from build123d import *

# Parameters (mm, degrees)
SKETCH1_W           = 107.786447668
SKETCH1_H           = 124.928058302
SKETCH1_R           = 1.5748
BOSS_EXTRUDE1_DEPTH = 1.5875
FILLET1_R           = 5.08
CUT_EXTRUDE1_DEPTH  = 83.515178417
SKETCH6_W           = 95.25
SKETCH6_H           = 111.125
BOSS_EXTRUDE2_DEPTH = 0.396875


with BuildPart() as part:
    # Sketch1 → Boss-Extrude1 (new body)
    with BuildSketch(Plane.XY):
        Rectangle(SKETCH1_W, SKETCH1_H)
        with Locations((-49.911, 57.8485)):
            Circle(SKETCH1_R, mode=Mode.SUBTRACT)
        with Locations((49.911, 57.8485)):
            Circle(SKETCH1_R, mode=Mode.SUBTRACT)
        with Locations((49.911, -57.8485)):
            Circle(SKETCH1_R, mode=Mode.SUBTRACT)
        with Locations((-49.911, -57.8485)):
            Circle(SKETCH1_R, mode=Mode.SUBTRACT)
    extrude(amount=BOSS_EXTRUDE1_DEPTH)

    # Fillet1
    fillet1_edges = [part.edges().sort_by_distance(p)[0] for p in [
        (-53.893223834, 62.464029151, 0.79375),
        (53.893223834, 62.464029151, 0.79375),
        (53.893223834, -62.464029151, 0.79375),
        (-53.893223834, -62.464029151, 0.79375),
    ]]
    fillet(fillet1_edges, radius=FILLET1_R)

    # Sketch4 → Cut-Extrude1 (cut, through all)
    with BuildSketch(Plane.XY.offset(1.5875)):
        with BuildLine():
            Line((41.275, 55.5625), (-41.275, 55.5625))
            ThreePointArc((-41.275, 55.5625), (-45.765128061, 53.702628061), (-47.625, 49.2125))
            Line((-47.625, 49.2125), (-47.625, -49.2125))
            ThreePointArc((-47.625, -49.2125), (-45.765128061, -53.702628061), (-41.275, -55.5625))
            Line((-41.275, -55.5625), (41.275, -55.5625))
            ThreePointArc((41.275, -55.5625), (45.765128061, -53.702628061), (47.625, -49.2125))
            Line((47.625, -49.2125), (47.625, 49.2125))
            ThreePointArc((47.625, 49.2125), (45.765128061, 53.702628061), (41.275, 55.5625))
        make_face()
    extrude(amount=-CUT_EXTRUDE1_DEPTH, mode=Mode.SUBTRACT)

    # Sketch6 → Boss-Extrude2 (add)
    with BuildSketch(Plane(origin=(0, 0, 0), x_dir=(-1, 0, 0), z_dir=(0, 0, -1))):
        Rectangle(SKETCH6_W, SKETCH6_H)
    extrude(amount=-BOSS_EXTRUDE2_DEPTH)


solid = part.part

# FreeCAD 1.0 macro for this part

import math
import FreeCAD as App
import Part
import Sketcher

V = App.Vector
Q = App.Units.Quantity


def edges_at(feature, points):
    """Names of the edges that pass closest to the given points."""
    edges = feature.Shape.Edges
    near = lambda p: min(range(len(edges)), key=lambda i: edges[i].distToShape(Part.Vertex(*p))[0])
    return sorted({f"Edge{near(p) + 1}" for p in points})

doc = App.newDocument("Part")
body = doc.addObject("PartDesign::Body", "Body")

# Sketch on XY plane
sketch1 = body.newObject("Sketcher::SketchObject", "Sketch")
sketch1.AttachmentSupport = (doc.getObject("XY_Plane"), [""])
sketch1.MapMode = "FlatFace"
sketch1.addGeometry(Part.LineSegment(V(-53.9, 62.5, 0), V(-53.9, -62.5, 0)), False)
sketch1.addGeometry(Part.LineSegment(V(-53.9, -62.5, 0), V(53.9, -62.5, 0)), False)
sketch1.addGeometry(Part.LineSegment(V(53.9, -62.5, 0), V(53.9, 62.5, 0)), False)
sketch1.addGeometry(Part.LineSegment(V(53.9, 62.5, 0), V(-53.9, 62.5, 0)), False)
sketch1.addGeometry(Part.Circle(V(-49.9, -57.8, 0), V(0, 0, 1), 1.6), False)
sketch1.addGeometry(Part.Circle(V(49.9, -57.8, 0), V(0, 0, 1), 1.6), False)
sketch1.addGeometry(Part.Circle(V(-49.9, 57.8, 0), V(0, 0, 1), 1.6), False)
sketch1.addGeometry(Part.Circle(V(49.9, 57.8, 0), V(0, 0, 1), 1.6), False)
sketch1.addConstraint(Sketcher.Constraint("Coincident", 0, 2, 1, 1))
sketch1.addConstraint(Sketcher.Constraint("Coincident", 1, 2, 2, 1))
sketch1.addConstraint(Sketcher.Constraint("Coincident", 2, 2, 3, 1))
sketch1.addConstraint(Sketcher.Constraint("Coincident", 3, 2, 0, 1))
sketch1.addConstraint(Sketcher.Constraint("Vertical", 0))
sketch1.addConstraint(Sketcher.Constraint("Horizontal", 1))
sketch1.addConstraint(Sketcher.Constraint("Vertical", 2))
sketch1.addConstraint(Sketcher.Constraint("Horizontal", 3))
sketch1.addConstraint(Sketcher.Constraint("Equal", 4, 5))
sketch1.addConstraint(Sketcher.Constraint("Equal", 5, 6))
sketch1.addConstraint(Sketcher.Constraint("Equal", 6, 7))
sketch1.addConstraint(Sketcher.Constraint("Symmetric", 5, 3, 6, 3, -1, 1))
sketch1.addConstraint(Sketcher.Constraint("Symmetric", 4, 3, 7, 3, -1, 1))
sketch1.addConstraint(Sketcher.Constraint("Symmetric", 0, 2, 2, 2, -1, 1))
sketch1.addConstraint(Sketcher.Constraint("Symmetric", 4, 3, 5, 3, -2))
sketch1.addConstraint(Sketcher.Constraint("Diameter", 4, Q("0.124 in")))
sketch1.addConstraint(Sketcher.Constraint("DistanceX", 4, 3, 5, 3, Q("3.93 in")))
sketch1.addConstraint(Sketcher.Constraint("DistanceY", 4, 3, 6, 3, Q("4.555 in")))
sketch1.addConstraint(Sketcher.Constraint("DistanceY", 0, 2, 0, 1, 124.928058))
sketch1.addConstraint(Sketcher.Constraint("DistanceX", 1, 1, 1, 2, 107.786448))
pad1 = body.newObject("PartDesign::Pad", "Pad")
pad1.Profile = sketch1
pad1.Length = Q("0.0625 in")
doc.recompute()

fillet = body.newObject("PartDesign::Fillet", "Fillet")
fillet.Base = (pad1, edges_at(pad1, [
    (-53.893, 62.464, 0.794),
    (53.893, 62.464, 0.794),
    (53.893, -62.464, 0.794),
    (-53.893, -62.464, 0.794),
]))
fillet.Radius = Q("0.2 in")

# Sketch on XY plane
sketch2 = body.newObject("Sketcher::SketchObject", "Sketch001")
sketch2.AttachmentSupport = (doc.getObject("XY_Plane"), [""])
sketch2.MapMode = "FlatFace"
sketch2.AttachmentOffset = App.Placement(V(0, 0, 0.0625 * 25.4), App.Rotation())
sketch2.addGeometry(Part.LineSegment(V(41, 56, 0), V(-41, 56, 0)), False)
sketch2.addGeometry(Part.ArcOfCircle(Part.Circle(V(-41, 49, 0), V(0, 0, 1), 6), math.radians(90), math.radians(180)), False)
sketch2.addGeometry(Part.LineSegment(V(-48, 49, 0), V(-48, -49, 0)), False)
sketch2.addGeometry(Part.ArcOfCircle(Part.Circle(V(-41, -49, 0), V(0, 0, 1), 6), math.radians(180), math.radians(270)), False)
sketch2.addGeometry(Part.LineSegment(V(-41, -56, 0), V(41, -56, 0)), False)
sketch2.addGeometry(Part.ArcOfCircle(Part.Circle(V(41, -49, 0), V(0, 0, 1), 6), math.radians(-90), math.radians(0)), False)
sketch2.addGeometry(Part.LineSegment(V(48, -49, 0), V(48, 49, 0)), False)
sketch2.addGeometry(Part.ArcOfCircle(Part.Circle(V(41, 49, 0), V(0, 0, 1), 6), math.radians(0), math.radians(90)), False)
sketch2.addConstraint(Sketcher.Constraint("Tangent", 0, 2, 1, 1))
sketch2.addConstraint(Sketcher.Constraint("Tangent", 1, 2, 2, 1))
sketch2.addConstraint(Sketcher.Constraint("Tangent", 2, 2, 3, 1))
sketch2.addConstraint(Sketcher.Constraint("Tangent", 3, 2, 4, 1))
sketch2.addConstraint(Sketcher.Constraint("Tangent", 4, 2, 5, 1))
sketch2.addConstraint(Sketcher.Constraint("Tangent", 5, 2, 6, 1))
sketch2.addConstraint(Sketcher.Constraint("Tangent", 6, 2, 7, 1))
sketch2.addConstraint(Sketcher.Constraint("Tangent", 7, 2, 0, 1))
sketch2.addConstraint(Sketcher.Constraint("Horizontal", 0))
sketch2.addConstraint(Sketcher.Constraint("Vertical", 2))
sketch2.addConstraint(Sketcher.Constraint("Horizontal", 4))
sketch2.addConstraint(Sketcher.Constraint("Vertical", 6))
sketch2.addConstraint(Sketcher.Constraint("Equal", 1, 3))
sketch2.addConstraint(Sketcher.Constraint("Equal", 3, 5))
sketch2.addConstraint(Sketcher.Constraint("Equal", 5, 7))
sketch2.addConstraint(Sketcher.Constraint("Symmetric", 1, 3, 5, 3, -1, 1))
sketch2.addConstraint(Sketcher.Constraint("Radius", 1, Q("0.25 in")))
sketch2.addConstraint(Sketcher.Constraint("DistanceX", 0, 2, 0, 1, Q("3.25 in")))
sketch2.addConstraint(Sketcher.Constraint("DistanceY", 2, 2, 2, 1, Q("3.875 in")))
pocket1 = body.newObject("PartDesign::Pocket", "Pocket")
pocket1.Profile = sketch2
pocket1.Type = "ThroughAll"

# Sketch on XY plane
sketch3 = body.newObject("Sketcher::SketchObject", "Sketch002")
sketch3.AttachmentSupport = (doc.getObject("XY_Plane"), [""])
sketch3.MapMode = "FlatFace"
sketch3.addGeometry(Part.LineSegment(V(48, 56, 0), V(48, -56, 0)), False)
sketch3.addGeometry(Part.LineSegment(V(48, -56, 0), V(-48, -56, 0)), False)
sketch3.addGeometry(Part.LineSegment(V(-48, -56, 0), V(-48, 56, 0)), False)
sketch3.addGeometry(Part.LineSegment(V(-48, 56, 0), V(48, 56, 0)), False)
sketch3.addConstraint(Sketcher.Constraint("Coincident", 0, 2, 1, 1))
sketch3.addConstraint(Sketcher.Constraint("Coincident", 1, 2, 2, 1))
sketch3.addConstraint(Sketcher.Constraint("Coincident", 2, 2, 3, 1))
sketch3.addConstraint(Sketcher.Constraint("Coincident", 3, 2, 0, 1))
sketch3.addConstraint(Sketcher.Constraint("Vertical", 0))
sketch3.addConstraint(Sketcher.Constraint("Horizontal", 1))
sketch3.addConstraint(Sketcher.Constraint("Vertical", 2))
sketch3.addConstraint(Sketcher.Constraint("Horizontal", 3))
sketch3.addConstraint(Sketcher.Constraint("Symmetric", 0, 2, 2, 2, -1, 1))
sketch3.addConstraint(Sketcher.Constraint("DistanceX", 1, 2, 1, 1, Q("3.75 in")))
sketch3.addConstraint(Sketcher.Constraint("DistanceY", 0, 2, 0, 1, Q("4.375 in")))
pad2 = body.newObject("PartDesign::Pad", "Pad001")
pad2.Profile = sketch3
pad2.Length = Q("0.015625 in")

doc.recompute()
